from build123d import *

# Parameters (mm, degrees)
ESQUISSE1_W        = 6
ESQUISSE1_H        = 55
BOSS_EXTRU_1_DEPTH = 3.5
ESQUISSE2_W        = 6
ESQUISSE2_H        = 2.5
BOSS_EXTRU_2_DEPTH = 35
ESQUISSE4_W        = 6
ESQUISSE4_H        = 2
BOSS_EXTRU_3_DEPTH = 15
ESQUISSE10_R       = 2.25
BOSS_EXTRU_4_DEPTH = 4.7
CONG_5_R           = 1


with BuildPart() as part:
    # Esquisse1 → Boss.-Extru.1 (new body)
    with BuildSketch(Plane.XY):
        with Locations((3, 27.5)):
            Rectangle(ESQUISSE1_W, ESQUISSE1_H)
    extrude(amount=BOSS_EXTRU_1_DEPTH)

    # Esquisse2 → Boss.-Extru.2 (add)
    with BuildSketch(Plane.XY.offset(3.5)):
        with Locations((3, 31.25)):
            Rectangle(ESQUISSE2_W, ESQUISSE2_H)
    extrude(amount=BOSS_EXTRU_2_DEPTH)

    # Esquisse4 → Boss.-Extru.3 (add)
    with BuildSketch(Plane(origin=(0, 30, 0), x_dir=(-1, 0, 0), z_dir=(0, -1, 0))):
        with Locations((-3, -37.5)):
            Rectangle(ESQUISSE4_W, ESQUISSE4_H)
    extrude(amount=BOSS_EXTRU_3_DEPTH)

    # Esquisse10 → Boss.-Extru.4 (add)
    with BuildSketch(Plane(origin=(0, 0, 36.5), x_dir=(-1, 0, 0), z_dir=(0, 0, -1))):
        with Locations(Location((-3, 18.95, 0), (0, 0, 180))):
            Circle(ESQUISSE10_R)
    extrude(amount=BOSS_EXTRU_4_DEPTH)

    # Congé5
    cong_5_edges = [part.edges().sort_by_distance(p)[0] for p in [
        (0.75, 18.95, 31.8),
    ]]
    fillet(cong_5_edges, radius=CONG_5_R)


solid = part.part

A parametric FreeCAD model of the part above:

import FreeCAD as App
import Part
import Sketcher


def edges_at(feature, points):
    """Names of the edges that pass closest to the given points."""
    edges = feature.Shape.Edges
    near = lambda p: min(range(len(edges)), key=lambda i: edges[i].distToShape(Part.Vertex(*p))[0])
    return sorted({f"Edge{near(p) + 1}" for p in points})


def add_polygon(sketch, points):
    """Adds a closed chain of lines whose ends are joined by coincident constraints."""
    first, n = sketch.GeometryCount, len(points)
    for a, b in zip(points, points[1:] + points[:1]):
        sketch.addGeometry(Part.LineSegment(App.Vector(*a, 0), App.Vector(*b, 0)), False)
    for i in range(n):
        sketch.addConstraint(Sketcher.Constraint("Coincident", first + i, 2, first + (i + 1) % n, 1))

doc = App.newDocument("Part")
params = doc.addObject("Spreadsheet::Sheet", "Params")
for row, (alias, value) in enumerate([
    ("sketch1_width", "6 mm"),
    ("sketch1_height", "55 mm"),
    ("pad1_length", "3.5 mm"),
    ("sketch2_width", "6 mm"),
    ("sketch2_height", "2.5 mm"),
    ("pad2_length", "35 mm"),
    ("sketch3_width", "6 mm"),
    ("sketch3_height", "2 mm"),
    ("pad3_length", "15 mm"),
    ("sketch4_diameter", "4.5 mm"),
    ("pad4_length", "4.7 mm"),
    ("fillet_radius", "1 mm"),
], start=1):
    params.set(f"A{row}", alias)
    params.set(f"B{row}", "=" + value)
    params.setAlias(f"B{row}", alias)

body = doc.addObject("PartDesign::Body", "Body")

sketch1 = body.newObject("Sketcher::SketchObject", "Sketch")
sketch1.AttachmentSupport = (doc.getObject("XY_Plane"), [""])
sketch1.MapMode = "FlatFace"
add_polygon(sketch1, [(0, 55), (0, 0), (6, 0), (6, 55)])
sketch1.addConstraint(Sketcher.Constraint("Vertical", 0))
sketch1.addConstraint(Sketcher.Constraint("Horizontal", 1))
sketch1.addConstraint(Sketcher.Constraint("Vertical", 2))
sketch1.addConstraint(Sketcher.Constraint("Horizontal", 3))
sketch1.addConstraint(Sketcher.Constraint("Coincident", 0, 2, -1, 1))
sketch1.addConstraint(Sketcher.Constraint("DistanceX", 1, 1, 1, 2, 6.0))
sketch1.addConstraint(Sketcher.Constraint("DistanceY", 0, 2, 0, 1, 55.0))
sketch1.setExpression("Constraints[9]", "Params.sketch1_width")
sketch1.setExpression("Constraints[10]", "Params.sketch1_height")
pad1 = body.newObject("PartDesign::Pad", "Pad")
pad1.Profile = sketch1
pad1.setExpression("Length", "Params.pad1_length")

sketch2 = body.newObject("Sketcher::SketchObject", "Sketch001")
sketch2.AttachmentSupport = (doc.getObject("XY_Plane"), [""])
sketch2.MapMode = "FlatFace"
sketch2.AttachmentOffset = App.Placement(App.Vector(0, 0, 3.5), App.Rotation())
add_polygon(sketch2, [(0, 32.5), (0, 30), (6, 30), (6, 32.5)])
sketch2.addConstraint(Sketcher.Constraint("Vertical", 0))
sketch2.addConstraint(Sketcher.Constraint("Horizontal", 1))
sketch2.addConstraint(Sketcher.Constraint("Vertical", 2))
sketch2.addConstraint(Sketcher.Constraint("Horizontal", 3))
sketch2.addConstraint(Sketcher.Constraint("PointOnObject", 0, 2, -2))
sketch2.addConstraint(Sketcher.Constraint("DistanceX", 1, 1, 1, 2, 6.0))
sketch2.addConstraint(Sketcher.Constraint("DistanceY", 0, 2, 0, 1, 2.5))
sketch2.addConstraint(Sketcher.Constraint("DistanceY", -1, 1, 0, 2, 30.0))
sketch2.setExpression("Constraints[9]", "Params.sketch2_width")
sketch2.setExpression("Constraints[10]", "Params.sketch2_height")
pad2 = body.newObject("PartDesign::Pad", "Pad001")
pad2.Profile = sketch2
pad2.setExpression("Length", "Params.pad2_length")

sketch3 = body.newObject("Sketcher::SketchObject", "Sketch002")
sketch3.AttachmentSupport = (doc.getObject("XZ_Plane"), [""])
sketch3.MapMode = "FlatFace"
sketch3.AttachmentOffset = App.Placement(App.Vector(0, 0, -30), App.Rotation())
add_polygon(sketch3, [(6, 36.5), (6, 38.5), (0, 38.5), (0, 36.5)])
sketch3.addConstraint(Sketcher.Constraint("Vertical", 0))
sketch3.addConstraint(Sketcher.Constraint("Horizontal", 1))
sketch3.addConstraint(Sketcher.Constraint("Vertical", 2))
sketch3.addConstraint(Sketcher.Constraint("Horizontal", 3))
sketch3.addConstraint(Sketcher.Constraint("PointOnObject", 1, 2, -2))
sketch3.addConstraint(Sketcher.Constraint("DistanceX", 1, 2, 1, 1, 6.0))
sketch3.addConstraint(Sketcher.Constraint("DistanceY", 0, 1, 0, 2, 2.0))
sketch3.addConstraint(Sketcher.Constraint("DistanceY", -1, 1, 0, 2, 38.5))
sketch3.setExpression("Constraints[9]", "Params.sketch3_width")
sketch3.setExpression("Constraints[10]", "Params.sketch3_height")
pad3 = body.newObject("PartDesign::Pad", "Pad002")
pad3.Profile = sketch3
pad3.setExpression("Length", "Params.pad3_length")

sketch4 = body.newObject("Sketcher::SketchObject", "Sketch003")
sketch4.AttachmentSupport = (doc.getObject("XY_Plane"), [""])
sketch4.MapMode = "FlatFace"
sketch4.AttachmentOffset = App.Placement(App.Vector(0, 0, 36.5), App.Rotation())
sketch4.addGeometry(Part.Circle(App.Vector(3, 18.9, 0), App.Vector(0, 0, 1), 2.2), False)
sketch4.addConstraint(Sketcher.Constraint("Diameter", 0, 4.5))
sketch4.addConstraint(Sketcher.Constraint("DistanceX", -1, 1, 0, 3, 3.0))
sketch4.addConstraint(Sketcher.Constraint("DistanceY", -1, 1, 0, 3, 18.95))
sketch4.setExpression("Constraints[0]", "Params.sketch4_diameter")
pad4 = body.newObject("PartDesign::Pad", "Pad003")
pad4.Profile = sketch4
pad4.setExpression("Length", "Params.pad4_length")
pad4.Reversed = True
doc.recompute()

fillet = body.newObject("PartDesign::Fillet", "Fillet")
fillet.Base = (pad4, edges_at(pad4, [(0.75, 18.95, 31.8)]))
fillet.setExpression("Radius", "Params.fillet_radius")

doc.recompute()
